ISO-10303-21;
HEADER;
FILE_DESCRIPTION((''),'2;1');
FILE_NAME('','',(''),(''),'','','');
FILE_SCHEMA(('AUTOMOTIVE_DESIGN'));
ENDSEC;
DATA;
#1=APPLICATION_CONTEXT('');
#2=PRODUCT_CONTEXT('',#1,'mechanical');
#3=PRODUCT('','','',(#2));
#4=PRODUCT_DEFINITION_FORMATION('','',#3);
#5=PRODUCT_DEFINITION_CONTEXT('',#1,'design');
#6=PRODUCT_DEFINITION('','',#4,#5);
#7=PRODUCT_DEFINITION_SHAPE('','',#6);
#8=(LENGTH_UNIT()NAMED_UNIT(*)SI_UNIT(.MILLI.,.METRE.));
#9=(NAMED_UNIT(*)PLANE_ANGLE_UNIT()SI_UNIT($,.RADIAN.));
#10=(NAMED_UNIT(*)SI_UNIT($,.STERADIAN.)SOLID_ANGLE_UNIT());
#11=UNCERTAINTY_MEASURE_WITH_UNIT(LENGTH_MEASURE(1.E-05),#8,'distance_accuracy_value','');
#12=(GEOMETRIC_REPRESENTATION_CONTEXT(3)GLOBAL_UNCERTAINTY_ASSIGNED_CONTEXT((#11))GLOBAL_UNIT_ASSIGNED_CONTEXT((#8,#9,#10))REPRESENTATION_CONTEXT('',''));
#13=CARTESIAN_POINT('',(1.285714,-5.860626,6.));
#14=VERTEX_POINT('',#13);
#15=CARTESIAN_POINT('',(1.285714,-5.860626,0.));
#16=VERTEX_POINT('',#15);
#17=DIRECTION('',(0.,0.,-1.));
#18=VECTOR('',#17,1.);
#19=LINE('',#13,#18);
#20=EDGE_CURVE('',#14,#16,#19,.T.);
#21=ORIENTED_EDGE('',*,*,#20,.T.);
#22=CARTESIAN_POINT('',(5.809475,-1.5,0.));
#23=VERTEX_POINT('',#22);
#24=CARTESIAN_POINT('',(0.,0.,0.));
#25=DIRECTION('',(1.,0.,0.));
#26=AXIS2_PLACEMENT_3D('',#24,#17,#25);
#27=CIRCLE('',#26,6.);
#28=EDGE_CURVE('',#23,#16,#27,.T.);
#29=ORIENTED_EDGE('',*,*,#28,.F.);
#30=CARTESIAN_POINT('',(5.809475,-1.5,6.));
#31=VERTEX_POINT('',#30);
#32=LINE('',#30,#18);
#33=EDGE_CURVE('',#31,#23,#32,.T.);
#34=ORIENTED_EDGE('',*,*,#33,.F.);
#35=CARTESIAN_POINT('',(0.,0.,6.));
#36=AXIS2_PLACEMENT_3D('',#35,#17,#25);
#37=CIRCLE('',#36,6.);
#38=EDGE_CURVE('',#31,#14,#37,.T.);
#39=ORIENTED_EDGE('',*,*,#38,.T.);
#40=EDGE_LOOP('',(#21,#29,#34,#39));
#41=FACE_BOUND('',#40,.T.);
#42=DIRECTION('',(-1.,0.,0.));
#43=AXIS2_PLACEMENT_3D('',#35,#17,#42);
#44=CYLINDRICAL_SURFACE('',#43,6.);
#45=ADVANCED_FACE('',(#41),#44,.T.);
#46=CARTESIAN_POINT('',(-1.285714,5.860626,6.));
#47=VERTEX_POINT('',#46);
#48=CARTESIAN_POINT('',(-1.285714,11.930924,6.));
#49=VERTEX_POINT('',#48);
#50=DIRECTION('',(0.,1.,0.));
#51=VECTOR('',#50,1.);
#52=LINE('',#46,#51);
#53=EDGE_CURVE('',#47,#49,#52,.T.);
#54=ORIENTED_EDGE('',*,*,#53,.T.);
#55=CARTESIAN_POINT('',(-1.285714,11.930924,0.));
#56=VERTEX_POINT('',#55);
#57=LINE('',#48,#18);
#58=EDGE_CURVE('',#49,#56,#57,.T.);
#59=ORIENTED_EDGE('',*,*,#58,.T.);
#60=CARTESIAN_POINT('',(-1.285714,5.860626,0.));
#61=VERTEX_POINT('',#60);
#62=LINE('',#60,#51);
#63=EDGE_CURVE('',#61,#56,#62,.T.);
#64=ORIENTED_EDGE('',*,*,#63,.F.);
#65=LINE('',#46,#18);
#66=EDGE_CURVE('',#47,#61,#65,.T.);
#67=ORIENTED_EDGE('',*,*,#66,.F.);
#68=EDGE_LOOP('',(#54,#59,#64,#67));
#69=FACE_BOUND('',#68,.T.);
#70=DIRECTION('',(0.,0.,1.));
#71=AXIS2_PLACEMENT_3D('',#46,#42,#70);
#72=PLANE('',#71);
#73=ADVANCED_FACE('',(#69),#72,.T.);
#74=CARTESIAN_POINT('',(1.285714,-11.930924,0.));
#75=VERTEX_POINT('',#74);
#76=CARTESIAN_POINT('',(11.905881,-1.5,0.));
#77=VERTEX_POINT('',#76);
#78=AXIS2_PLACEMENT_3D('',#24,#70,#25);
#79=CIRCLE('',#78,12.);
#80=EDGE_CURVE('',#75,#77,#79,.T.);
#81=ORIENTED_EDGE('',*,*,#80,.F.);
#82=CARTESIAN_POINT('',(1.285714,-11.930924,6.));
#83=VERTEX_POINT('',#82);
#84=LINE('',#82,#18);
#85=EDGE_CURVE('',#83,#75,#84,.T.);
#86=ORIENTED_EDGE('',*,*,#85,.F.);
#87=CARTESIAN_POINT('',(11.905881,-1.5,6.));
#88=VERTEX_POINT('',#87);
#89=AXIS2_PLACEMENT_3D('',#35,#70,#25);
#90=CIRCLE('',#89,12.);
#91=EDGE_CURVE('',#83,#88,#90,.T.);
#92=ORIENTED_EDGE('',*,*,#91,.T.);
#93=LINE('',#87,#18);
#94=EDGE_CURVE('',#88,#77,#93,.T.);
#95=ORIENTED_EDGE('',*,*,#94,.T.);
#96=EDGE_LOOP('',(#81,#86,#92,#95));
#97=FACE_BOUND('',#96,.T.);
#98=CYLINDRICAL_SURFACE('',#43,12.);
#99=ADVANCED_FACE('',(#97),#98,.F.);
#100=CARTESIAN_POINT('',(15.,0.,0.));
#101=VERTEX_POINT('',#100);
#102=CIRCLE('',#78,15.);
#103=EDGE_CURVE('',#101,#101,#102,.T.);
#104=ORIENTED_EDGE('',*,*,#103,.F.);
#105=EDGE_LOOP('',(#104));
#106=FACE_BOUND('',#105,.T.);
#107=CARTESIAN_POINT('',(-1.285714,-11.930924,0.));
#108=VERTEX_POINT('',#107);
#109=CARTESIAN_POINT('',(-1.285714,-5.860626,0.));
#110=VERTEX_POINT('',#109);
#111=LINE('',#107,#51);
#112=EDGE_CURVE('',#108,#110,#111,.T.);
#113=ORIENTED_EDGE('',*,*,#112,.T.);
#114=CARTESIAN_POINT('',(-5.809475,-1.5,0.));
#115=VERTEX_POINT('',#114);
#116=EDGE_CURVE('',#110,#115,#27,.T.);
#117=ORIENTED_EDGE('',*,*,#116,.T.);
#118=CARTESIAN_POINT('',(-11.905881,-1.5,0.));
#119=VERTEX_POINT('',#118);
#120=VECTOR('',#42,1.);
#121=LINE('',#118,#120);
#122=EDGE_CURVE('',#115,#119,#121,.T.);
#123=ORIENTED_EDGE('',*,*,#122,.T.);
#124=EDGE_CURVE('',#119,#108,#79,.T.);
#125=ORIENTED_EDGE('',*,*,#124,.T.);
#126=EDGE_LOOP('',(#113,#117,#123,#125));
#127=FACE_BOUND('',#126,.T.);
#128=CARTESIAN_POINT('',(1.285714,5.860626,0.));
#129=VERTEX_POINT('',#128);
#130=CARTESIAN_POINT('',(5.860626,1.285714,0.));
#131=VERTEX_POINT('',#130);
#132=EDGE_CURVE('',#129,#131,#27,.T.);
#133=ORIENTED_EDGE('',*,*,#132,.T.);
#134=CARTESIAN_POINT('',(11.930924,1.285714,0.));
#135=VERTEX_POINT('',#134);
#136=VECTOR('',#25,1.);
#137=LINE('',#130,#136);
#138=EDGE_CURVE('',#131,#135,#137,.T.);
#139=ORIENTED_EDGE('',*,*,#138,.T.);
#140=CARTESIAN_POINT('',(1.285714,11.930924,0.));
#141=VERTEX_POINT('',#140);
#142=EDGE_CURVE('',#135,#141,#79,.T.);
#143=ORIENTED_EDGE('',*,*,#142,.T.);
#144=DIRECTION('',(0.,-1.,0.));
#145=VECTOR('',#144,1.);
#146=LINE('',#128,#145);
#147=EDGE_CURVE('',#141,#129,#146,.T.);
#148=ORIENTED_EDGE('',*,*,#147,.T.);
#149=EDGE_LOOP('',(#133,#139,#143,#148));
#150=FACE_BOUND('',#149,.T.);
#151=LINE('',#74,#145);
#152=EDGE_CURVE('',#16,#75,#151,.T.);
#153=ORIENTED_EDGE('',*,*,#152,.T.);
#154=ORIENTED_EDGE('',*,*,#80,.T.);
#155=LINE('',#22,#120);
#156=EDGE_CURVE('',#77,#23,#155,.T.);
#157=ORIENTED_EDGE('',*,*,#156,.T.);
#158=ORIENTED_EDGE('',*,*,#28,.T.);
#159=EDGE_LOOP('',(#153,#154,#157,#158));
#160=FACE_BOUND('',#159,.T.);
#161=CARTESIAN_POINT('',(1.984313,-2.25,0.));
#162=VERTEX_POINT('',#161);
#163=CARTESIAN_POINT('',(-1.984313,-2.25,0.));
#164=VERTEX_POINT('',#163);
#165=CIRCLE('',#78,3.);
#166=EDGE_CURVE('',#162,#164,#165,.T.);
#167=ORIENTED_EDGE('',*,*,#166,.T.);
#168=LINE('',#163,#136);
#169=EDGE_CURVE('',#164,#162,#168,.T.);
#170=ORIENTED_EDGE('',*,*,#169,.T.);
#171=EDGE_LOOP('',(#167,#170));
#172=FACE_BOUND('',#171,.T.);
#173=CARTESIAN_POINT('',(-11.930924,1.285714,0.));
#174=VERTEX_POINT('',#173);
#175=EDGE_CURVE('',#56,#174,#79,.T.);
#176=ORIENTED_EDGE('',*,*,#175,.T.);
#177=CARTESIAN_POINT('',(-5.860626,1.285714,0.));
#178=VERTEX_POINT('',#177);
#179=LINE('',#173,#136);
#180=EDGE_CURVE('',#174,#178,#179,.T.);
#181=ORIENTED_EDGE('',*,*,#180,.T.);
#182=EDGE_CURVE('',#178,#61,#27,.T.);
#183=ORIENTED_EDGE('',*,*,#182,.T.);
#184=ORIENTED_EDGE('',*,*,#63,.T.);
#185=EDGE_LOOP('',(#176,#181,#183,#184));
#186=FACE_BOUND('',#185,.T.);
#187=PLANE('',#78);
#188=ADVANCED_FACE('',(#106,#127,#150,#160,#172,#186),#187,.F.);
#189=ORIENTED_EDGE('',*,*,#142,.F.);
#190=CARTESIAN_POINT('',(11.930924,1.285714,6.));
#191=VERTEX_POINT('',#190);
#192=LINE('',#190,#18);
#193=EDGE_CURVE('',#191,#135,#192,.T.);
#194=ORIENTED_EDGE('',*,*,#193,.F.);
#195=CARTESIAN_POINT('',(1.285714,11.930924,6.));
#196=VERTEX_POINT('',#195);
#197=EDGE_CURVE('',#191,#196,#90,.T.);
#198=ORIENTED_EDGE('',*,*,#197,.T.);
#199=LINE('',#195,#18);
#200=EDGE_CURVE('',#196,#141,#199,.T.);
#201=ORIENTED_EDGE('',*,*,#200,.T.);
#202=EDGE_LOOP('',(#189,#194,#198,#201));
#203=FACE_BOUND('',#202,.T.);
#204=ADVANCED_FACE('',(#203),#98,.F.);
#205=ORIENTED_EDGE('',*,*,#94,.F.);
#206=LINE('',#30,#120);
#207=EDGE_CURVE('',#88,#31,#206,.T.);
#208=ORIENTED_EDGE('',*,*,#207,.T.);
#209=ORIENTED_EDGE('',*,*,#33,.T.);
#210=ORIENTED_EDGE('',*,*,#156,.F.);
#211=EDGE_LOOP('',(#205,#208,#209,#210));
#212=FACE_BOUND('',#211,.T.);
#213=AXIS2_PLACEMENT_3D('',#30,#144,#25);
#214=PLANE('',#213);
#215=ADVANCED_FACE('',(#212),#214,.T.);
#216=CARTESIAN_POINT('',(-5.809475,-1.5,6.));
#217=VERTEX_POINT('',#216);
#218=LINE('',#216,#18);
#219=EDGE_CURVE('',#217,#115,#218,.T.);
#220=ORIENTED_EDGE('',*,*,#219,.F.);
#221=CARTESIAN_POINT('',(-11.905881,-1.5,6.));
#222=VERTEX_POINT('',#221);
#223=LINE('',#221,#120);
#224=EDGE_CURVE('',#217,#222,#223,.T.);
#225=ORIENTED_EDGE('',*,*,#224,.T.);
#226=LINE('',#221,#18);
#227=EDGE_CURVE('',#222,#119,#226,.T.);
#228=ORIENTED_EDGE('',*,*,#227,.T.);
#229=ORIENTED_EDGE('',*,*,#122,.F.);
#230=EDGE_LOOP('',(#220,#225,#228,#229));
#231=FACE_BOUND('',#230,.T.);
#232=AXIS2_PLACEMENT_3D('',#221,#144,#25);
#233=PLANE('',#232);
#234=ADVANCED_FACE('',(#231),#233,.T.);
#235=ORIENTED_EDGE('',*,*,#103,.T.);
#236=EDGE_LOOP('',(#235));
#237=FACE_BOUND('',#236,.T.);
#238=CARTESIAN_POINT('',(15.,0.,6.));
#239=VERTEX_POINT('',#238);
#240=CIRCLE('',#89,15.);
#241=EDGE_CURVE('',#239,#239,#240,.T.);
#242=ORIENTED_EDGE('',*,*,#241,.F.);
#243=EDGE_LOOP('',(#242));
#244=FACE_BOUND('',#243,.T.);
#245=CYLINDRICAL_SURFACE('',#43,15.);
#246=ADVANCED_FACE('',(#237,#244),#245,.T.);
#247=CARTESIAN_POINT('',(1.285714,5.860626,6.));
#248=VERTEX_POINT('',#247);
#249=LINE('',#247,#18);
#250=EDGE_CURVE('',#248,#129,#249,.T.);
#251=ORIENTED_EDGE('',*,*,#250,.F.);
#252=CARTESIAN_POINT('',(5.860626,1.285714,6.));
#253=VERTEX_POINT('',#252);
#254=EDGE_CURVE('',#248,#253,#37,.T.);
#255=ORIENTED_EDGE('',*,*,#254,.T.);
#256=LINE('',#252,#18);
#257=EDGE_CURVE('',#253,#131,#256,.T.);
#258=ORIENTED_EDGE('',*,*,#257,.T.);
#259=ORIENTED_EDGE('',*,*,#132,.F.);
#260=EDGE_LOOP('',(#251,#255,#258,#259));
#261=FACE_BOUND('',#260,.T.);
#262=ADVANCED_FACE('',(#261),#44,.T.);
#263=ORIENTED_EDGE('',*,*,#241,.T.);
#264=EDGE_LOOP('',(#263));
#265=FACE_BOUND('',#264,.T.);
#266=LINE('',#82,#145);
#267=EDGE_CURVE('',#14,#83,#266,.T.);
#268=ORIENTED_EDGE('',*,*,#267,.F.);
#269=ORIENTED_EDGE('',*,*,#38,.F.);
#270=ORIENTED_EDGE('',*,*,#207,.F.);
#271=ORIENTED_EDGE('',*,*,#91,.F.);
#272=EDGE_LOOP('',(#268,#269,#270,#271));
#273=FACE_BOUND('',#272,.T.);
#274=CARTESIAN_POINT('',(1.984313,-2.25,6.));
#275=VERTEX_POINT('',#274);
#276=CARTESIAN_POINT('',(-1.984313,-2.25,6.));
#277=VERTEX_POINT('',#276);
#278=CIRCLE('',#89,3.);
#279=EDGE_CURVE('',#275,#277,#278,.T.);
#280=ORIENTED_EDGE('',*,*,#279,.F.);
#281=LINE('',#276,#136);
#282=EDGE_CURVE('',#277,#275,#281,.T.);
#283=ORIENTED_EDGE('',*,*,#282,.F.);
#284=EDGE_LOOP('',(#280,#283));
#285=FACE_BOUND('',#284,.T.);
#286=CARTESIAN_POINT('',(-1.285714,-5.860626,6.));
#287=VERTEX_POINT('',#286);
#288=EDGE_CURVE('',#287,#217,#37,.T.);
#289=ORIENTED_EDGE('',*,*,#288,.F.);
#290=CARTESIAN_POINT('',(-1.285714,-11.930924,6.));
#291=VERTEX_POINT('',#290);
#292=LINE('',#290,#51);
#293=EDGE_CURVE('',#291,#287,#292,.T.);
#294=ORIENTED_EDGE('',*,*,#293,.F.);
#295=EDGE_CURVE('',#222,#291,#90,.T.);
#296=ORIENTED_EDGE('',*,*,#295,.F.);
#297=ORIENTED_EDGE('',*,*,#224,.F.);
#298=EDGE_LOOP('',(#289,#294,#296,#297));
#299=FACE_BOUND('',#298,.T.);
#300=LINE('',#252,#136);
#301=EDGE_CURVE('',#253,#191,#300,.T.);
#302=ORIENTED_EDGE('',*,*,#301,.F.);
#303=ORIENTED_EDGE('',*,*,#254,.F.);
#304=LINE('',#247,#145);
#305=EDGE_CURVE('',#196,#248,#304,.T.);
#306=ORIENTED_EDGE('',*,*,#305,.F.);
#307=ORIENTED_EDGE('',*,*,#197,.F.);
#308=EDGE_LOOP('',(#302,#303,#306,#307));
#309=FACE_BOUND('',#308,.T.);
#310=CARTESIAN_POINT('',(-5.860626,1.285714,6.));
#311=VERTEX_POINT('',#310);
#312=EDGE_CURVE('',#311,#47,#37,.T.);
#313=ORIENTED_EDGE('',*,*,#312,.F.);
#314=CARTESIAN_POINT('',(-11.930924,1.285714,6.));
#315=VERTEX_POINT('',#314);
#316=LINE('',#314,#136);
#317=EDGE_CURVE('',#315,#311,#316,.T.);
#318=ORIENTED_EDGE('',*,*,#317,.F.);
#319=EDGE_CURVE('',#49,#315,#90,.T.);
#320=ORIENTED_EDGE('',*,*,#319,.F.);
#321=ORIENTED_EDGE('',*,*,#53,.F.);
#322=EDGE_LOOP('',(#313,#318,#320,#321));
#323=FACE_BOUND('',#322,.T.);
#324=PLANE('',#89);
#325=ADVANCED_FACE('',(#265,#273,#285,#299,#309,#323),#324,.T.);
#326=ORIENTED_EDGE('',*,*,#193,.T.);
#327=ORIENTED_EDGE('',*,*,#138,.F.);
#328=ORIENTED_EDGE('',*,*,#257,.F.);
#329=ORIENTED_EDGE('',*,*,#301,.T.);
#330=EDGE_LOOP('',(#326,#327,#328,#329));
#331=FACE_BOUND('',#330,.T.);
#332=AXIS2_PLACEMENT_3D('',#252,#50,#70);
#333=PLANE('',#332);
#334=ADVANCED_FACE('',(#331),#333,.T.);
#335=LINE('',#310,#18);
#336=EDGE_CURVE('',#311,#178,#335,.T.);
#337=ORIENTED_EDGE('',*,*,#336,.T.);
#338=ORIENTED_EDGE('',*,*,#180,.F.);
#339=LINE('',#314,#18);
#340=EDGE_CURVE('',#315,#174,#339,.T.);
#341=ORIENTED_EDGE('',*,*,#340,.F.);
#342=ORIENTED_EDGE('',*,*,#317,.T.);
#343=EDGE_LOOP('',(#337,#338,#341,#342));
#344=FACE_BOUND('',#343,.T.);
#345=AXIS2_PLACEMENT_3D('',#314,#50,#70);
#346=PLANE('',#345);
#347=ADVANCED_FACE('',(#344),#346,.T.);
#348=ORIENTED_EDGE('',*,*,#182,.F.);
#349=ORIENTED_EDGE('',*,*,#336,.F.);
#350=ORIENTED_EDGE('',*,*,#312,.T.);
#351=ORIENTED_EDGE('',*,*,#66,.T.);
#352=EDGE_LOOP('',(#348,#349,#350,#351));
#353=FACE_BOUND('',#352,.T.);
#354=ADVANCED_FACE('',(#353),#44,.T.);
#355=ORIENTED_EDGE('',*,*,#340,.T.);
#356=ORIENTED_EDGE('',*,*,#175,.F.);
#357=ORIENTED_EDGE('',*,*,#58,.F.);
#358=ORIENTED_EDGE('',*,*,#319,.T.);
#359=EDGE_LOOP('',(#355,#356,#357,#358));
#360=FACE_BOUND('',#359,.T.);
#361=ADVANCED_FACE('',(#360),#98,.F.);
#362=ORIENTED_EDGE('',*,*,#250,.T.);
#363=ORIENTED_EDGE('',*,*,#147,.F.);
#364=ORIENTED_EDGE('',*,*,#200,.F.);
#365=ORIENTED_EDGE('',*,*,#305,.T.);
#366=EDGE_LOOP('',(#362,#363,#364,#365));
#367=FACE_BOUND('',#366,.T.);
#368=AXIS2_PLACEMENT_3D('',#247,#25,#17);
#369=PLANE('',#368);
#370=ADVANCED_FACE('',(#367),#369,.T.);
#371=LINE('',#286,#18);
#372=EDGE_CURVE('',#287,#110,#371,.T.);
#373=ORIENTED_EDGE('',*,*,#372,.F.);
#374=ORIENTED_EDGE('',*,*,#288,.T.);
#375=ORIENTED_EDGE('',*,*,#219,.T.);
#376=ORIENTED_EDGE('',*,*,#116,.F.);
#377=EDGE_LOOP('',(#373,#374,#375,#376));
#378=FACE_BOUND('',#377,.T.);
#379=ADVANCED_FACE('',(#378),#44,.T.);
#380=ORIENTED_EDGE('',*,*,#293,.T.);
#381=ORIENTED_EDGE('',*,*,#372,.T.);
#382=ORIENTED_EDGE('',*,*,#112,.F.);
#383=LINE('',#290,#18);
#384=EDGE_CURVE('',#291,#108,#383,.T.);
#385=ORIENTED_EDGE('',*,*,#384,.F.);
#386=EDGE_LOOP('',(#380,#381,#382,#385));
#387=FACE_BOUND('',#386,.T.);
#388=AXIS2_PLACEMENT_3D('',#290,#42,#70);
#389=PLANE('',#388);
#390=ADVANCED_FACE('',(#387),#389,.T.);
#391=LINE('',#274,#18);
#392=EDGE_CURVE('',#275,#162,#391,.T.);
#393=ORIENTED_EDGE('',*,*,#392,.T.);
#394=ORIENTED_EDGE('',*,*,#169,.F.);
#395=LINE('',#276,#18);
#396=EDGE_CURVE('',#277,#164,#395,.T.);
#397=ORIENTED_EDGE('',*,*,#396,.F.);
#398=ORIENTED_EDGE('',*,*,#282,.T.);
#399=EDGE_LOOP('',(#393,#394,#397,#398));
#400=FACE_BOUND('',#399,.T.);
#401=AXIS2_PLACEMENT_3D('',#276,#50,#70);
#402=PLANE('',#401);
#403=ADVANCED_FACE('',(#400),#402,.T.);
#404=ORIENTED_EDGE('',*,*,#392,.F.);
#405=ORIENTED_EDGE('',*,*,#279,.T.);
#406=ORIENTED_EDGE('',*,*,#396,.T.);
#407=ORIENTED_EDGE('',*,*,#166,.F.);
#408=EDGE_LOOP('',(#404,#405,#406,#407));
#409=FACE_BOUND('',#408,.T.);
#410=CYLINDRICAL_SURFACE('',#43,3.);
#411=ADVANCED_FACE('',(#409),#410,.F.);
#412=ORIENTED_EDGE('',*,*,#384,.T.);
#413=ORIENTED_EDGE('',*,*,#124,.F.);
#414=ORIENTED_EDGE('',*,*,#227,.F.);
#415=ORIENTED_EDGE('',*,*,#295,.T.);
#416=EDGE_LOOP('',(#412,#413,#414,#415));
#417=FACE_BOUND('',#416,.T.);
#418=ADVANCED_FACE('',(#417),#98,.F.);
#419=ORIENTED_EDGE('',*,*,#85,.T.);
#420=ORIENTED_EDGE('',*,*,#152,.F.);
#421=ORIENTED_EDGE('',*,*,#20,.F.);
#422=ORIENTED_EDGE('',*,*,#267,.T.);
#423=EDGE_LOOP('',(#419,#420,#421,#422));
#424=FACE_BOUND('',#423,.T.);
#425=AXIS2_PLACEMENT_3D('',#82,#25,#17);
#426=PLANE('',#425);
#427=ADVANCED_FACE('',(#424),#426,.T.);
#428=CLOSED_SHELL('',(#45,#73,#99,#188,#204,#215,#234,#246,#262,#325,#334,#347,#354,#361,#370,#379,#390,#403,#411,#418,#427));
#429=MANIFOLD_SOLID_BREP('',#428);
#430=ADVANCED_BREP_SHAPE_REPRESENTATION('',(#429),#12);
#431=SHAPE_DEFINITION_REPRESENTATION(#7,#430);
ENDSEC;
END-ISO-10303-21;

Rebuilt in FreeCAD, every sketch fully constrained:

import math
import FreeCAD as App
import Part
import Sketcher
from FreeCAD import Vector

doc = App.newDocument("Part")
body = doc.addObject("PartDesign::Body", "Body")

# Sketch on XY plane
sketch1 = body.newObject("Sketcher::SketchObject", "Sketch")
sketch1.AttachmentSupport = (doc.getObject("XY_Plane"), [""])
sketch1.MapMode = "FlatFace"
sketch1.addGeometry(Part.Circle(Vector(0, 0, 0), Vector(0, 0, 1), 15), False)
sketch1.addGeometry(Part.LineSegment(Vector(-1.3, -5.9, 0), Vector(-1.3, -11.9, 0)), False)
sketch1.addGeometry(Part.ArcOfCircle(Part.Circle(Vector(0, 0, 0), Vector(0, 0, 1), 12), math.radians(-173), math.radians(-96)), False)
sketch1.addGeometry(Part.LineSegment(Vector(-11.9, -1.5, 0), Vector(-5.8, -1.5, 0)), False)
sketch1.addGeometry(Part.ArcOfCircle(Part.Circle(Vector(0, 0, 0), Vector(0, 0, 1), 6), math.radians(-166), math.radians(-102)), False)
sketch1.addGeometry(Part.ArcOfCircle(Part.Circle(Vector(0, 0, 0), Vector(0, 0, 1), 12), math.radians(-84), math.radians(-7)), False)
sketch1.addGeometry(Part.LineSegment(Vector(1.3, -11.9, 0), Vector(1.3, -5.9, 0)), False)
sketch1.addGeometry(Part.ArcOfCircle(Part.Circle(Vector(0, 0, 0), Vector(0, 0, 1), 6), math.radians(-78), math.radians(-14)), False)
sketch1.addGeometry(Part.LineSegment(Vector(5.8, -1.5, 0), Vector(11.9, -1.5, 0)), False)
sketch1.addGeometry(Part.LineSegment(Vector(2, -2.2, 0), Vector(-2, -2.2, 0)), False)
sketch1.addGeometry(Part.ArcOfCircle(Part.Circle(Vector(0, 0, 0), Vector(0, 0, 1), 3), math.radians(-49), math.radians(229)), False)
sketch1.addGeometry(Part.LineSegment(Vector(-1.3, 11.9, 0), Vector(-1.3, 5.9, 0)), False)
sketch1.addGeometry(Part.ArcOfCircle(Part.Circle(Vector(0, 0, 0), Vector(0, 0, 1), 6), math.radians(102), math.radians(168)), False)
sketch1.addGeometry(Part.LineSegment(Vector(-5.9, 1.3, 0), Vector(-11.9, 1.3, 0)), False)
sketch1.addGeometry(Part.ArcOfCircle(Part.Circle(Vector(0, 0, 0), Vector(0, 0, 1), 12), math.radians(96), math.radians(174)), False)
sketch1.addGeometry(Part.ArcOfCircle(Part.Circle(Vector(0, 0, 0), Vector(0, 0, 1), 6), math.radians(12), math.radians(78)), False)
sketch1.addGeometry(Part.LineSegment(Vector(1.3, 5.9, 0), Vector(1.3, 11.9, 0)), False)
sketch1.addGeometry(Part.ArcOfCircle(Part.Circle(Vector(0, 0, 0), Vector(0, 0, 1), 12), math.radians(6), math.radians(84)), False)
sketch1.addGeometry(Part.LineSegment(Vector(11.9, 1.3, 0), Vector(5.9, 1.3, 0)), False)
sketch1.addConstraint(Sketcher.Constraint("Coincident", 1, 2, 2, 2))
sketch1.addConstraint(Sketcher.Constraint("Coincident", 2, 1, 3, 1))
sketch1.addConstraint(Sketcher.Constraint("Coincident", 3, 2, 4, 1))
sketch1.addConstraint(Sketcher.Constraint("Coincident", 4, 2, 1, 1))
sketch1.addConstraint(Sketcher.Constraint("Coincident", 5, 1, 6, 1))
sketch1.addConstraint(Sketcher.Constraint("Coincident", 6, 2, 7, 1))
sketch1.addConstraint(Sketcher.Constraint("Coincident", 7, 2, 8, 1))
sketch1.addConstraint(Sketcher.Constraint("Coincident", 8, 2, 5, 2))
sketch1.addConstraint(Sketcher.Constraint("Coincident", 9, 1, 10, 1))
sketch1.addConstraint(Sketcher.Constraint("Coincident", 10, 2, 9, 2))
sketch1.addConstraint(Sketcher.Constraint("Coincident", 11, 2, 12, 1))
sketch1.addConstraint(Sketcher.Constraint("Coincident", 12, 2, 13, 1))
sketch1.addConstraint(Sketcher.Constraint("Coincident", 13, 2, 14, 2))
sketch1.addConstraint(Sketcher.Constraint("Coincident", 14, 1, 11, 1))
sketch1.addConstraint(Sketcher.Constraint("Coincident", 15, 2, 16, 1))
sketch1.addConstraint(Sketcher.Constraint("Coincident", 16, 2, 17, 2))
sketch1.addConstraint(Sketcher.Constraint("Coincident", 17, 1, 18, 1))
sketch1.addConstraint(Sketcher.Constraint("Coincident", 18, 2, 15, 1))
sketch1.addConstraint(Sketcher.Constraint("Vertical", 1))
sketch1.addConstraint(Sketcher.Constraint("Horizontal", 3))
sketch1.addConstraint(Sketcher.Constraint("Vertical", 6))
sketch1.addConstraint(Sketcher.Constraint("Horizontal", 8))
sketch1.addConstraint(Sketcher.Constraint("Horizontal", 9))
sketch1.addConstraint(Sketcher.Constraint("Vertical", 11))
sketch1.addConstraint(Sketcher.Constraint("Horizontal", 13))
sketch1.addConstraint(Sketcher.Constraint("Vertical", 16))
sketch1.addConstraint(Sketcher.Constraint("Horizontal", 18))
sketch1.addConstraint(Sketcher.Constraint("Coincident", 0, 3, -1, 1))
sketch1.addConstraint(Sketcher.Constraint("Coincident", 2, 3, -1, 1))
sketch1.addConstraint(Sketcher.Constraint("Coincident", 4, 3, -1, 1))
sketch1.addConstraint(Sketcher.Constraint("Coincident", 5, 3, -1, 1))
sketch1.addConstraint(Sketcher.Constraint("Coincident", 7, 3, -1, 1))
sketch1.addConstraint(Sketcher.Constraint("Coincident", 10, 3, -1, 1))
sketch1.addConstraint(Sketcher.Constraint("Coincident", 12, 3, -1, 1))
sketch1.addConstraint(Sketcher.Constraint("Coincident", 14, 3, -1, 1))
sketch1.addConstraint(Sketcher.Constraint("Coincident", 15, 3, -1, 1))
sketch1.addConstraint(Sketcher.Constraint("Coincident", 17, 3, -1, 1))
sketch1.addConstraint(Sketcher.Constraint("Equal", 2, 5))
sketch1.addConstraint(Sketcher.Constraint("Equal", 4, 7))
sketch1.addConstraint(Sketcher.Constraint("Equal", 7, 12))
sketch1.addConstraint(Sketcher.Constraint("Equal", 5, 14))
sketch1.addConstraint(Sketcher.Constraint("Equal", 12, 15))
sketch1.addConstraint(Sketcher.Constraint("Equal", 14, 17))
sketch1.addConstraint(Sketcher.Constraint("Horizontal", 1, 2, 5, 1))
sketch1.addConstraint(Sketcher.Constraint("Horizontal", 3, 2, 7, 2))
sketch1.addConstraint(Sketcher.Constraint("Horizontal", 11, 2, 15, 2))
sketch1.addConstraint(Sketcher.Constraint("Horizontal", 13, 2, 17, 1))
sketch1.addConstraint(Sketcher.Constraint("Vertical", 4, 2, 11, 2))
sketch1.addConstraint(Sketcher.Constraint("Equal", 18, 1))
sketch1.addConstraint(Sketcher.Constraint("Diameter", 0, 30.0))
sketch1.addConstraint(Sketcher.Constraint("Radius", 2, 12.0))
sketch1.addConstraint(Sketcher.Constraint("Radius", 4, 6.0))
sketch1.addConstraint(Sketcher.Constraint("Radius", 10, 3.0))
sketch1.addConstraint(Sketcher.Constraint("DistanceY", 2, 1, -1, 1, 1.5))
sketch1.addConstraint(Sketcher.Constraint("DistanceY", 9, 1, -1, 1, 2.25))
sketch1.addConstraint(Sketcher.Constraint("DistanceX", 13, 2, 13, 1, 6.070297))
pad1 = body.newObject("PartDesign::Pad", "Pad")
pad1.Profile = sketch1
pad1.Length = 6

doc.recompute()
